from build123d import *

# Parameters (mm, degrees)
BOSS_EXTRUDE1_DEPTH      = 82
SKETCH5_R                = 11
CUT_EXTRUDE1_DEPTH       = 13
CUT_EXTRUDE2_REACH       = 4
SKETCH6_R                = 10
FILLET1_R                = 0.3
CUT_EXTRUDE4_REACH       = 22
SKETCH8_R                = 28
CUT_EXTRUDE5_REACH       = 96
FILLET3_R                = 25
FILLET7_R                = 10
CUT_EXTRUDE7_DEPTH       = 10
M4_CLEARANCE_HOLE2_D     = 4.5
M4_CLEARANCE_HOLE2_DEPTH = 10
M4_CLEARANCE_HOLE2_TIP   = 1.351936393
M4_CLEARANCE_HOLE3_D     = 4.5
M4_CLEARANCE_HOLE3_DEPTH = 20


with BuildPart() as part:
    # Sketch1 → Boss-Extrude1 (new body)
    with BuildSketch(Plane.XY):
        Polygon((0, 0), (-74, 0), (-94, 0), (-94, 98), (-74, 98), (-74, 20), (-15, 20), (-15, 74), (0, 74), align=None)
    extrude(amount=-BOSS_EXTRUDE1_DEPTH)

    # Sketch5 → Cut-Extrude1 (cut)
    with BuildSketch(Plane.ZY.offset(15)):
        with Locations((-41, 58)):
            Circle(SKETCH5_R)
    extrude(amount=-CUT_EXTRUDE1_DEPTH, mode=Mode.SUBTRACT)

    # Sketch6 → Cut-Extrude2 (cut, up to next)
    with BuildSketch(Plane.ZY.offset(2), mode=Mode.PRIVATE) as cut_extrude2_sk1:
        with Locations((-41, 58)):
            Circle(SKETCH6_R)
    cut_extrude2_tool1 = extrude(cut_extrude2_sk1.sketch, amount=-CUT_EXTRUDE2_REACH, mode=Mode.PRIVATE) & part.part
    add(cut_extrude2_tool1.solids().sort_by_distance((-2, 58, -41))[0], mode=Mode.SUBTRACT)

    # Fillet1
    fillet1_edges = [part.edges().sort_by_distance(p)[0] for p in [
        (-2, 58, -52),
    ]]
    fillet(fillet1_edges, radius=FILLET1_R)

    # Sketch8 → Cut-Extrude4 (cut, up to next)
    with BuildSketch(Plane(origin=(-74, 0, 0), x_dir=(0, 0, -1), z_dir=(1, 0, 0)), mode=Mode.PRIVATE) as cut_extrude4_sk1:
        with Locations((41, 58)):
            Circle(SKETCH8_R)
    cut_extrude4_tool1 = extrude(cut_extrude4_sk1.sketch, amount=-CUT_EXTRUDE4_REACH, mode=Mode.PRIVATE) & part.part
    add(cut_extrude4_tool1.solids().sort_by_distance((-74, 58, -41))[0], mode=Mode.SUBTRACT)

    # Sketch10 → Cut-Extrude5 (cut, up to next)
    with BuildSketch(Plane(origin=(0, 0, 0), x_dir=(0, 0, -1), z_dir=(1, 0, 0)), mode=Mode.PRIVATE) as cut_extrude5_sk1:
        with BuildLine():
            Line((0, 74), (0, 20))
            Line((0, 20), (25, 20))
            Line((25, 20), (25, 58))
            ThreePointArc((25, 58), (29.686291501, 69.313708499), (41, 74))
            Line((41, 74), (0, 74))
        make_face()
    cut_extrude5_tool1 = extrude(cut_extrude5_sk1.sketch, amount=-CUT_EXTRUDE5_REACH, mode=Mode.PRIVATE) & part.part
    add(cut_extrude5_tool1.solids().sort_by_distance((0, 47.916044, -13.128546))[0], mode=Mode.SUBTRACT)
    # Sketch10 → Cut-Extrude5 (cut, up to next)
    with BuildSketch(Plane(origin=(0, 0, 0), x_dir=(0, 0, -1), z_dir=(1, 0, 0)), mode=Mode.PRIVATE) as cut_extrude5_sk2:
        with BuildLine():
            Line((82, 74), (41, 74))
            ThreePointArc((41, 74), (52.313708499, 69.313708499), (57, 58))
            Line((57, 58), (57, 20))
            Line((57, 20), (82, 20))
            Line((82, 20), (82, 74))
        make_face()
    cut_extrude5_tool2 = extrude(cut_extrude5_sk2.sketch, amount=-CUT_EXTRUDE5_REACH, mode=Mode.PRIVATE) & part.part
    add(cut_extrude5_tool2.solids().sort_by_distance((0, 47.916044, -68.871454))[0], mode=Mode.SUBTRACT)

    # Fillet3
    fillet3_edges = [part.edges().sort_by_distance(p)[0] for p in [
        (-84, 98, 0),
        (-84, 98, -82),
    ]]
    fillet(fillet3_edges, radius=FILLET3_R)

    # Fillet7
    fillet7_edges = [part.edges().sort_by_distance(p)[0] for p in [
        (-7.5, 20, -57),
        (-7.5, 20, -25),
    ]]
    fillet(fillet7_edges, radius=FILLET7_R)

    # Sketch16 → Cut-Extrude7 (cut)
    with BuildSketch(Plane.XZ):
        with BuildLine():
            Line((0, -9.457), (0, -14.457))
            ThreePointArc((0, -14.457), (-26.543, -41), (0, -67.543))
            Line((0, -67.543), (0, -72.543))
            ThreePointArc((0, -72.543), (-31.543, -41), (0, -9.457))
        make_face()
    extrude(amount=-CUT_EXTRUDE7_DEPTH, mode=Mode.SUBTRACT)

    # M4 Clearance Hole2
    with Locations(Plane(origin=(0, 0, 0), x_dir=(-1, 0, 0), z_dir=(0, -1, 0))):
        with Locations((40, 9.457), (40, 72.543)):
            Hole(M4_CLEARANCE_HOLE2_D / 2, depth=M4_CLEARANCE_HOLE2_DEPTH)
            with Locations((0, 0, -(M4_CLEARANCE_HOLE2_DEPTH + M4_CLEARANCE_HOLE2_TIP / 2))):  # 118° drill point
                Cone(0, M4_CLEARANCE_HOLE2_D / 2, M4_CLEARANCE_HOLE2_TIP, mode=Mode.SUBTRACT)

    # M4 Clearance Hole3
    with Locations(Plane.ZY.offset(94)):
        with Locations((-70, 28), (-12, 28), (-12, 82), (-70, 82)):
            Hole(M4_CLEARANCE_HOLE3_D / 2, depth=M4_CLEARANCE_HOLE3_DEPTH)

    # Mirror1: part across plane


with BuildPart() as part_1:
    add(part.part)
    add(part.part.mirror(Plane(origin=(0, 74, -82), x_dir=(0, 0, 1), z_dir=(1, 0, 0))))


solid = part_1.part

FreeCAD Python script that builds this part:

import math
import FreeCAD as App
import Part
import Sketcher


def edges_at(feature, points):
    """Names of the edges that pass closest to the given points."""
    edges = feature.Shape.Edges
    near = lambda p: min(range(len(edges)), key=lambda i: edges[i].distToShape(Part.Vertex(*p))[0])
    return sorted({f"Edge{near(p) + 1}" for p in points})

doc = App.newDocument("Part")
body = doc.addObject("PartDesign::Body", "Body")

# Sketch on XY plane
sketch1 = body.newObject("Sketcher::SketchObject", "Sketch")
sketch1.AttachmentSupport = (doc.getObject("XY_Plane"), [""])
sketch1.MapMode = "FlatFace"
sketch1.addGeometry(Part.LineSegment(App.Vector(-94, 0, 0), App.Vector(0, 0, 0)), False)
sketch1.addGeometry(Part.LineSegment(App.Vector(0, 0, 0), App.Vector(0, 74, 0)), False)
sketch1.addGeometry(Part.LineSegment(App.Vector(0, 74, 0), App.Vector(-15, 74, 0)), False)
sketch1.addGeometry(Part.LineSegment(App.Vector(-15, 74, 0), App.Vector(-15, 20, 0)), False)
sketch1.addGeometry(Part.LineSegment(App.Vector(-15, 20, 0), App.Vector(-74, 20, 0)), False)
sketch1.addGeometry(Part.LineSegment(App.Vector(-74, 20, 0), App.Vector(-74, 98, 0)), False)
sketch1.addGeometry(Part.LineSegment(App.Vector(-74, 98, 0), App.Vector(-94, 98, 0)), False)
sketch1.addGeometry(Part.LineSegment(App.Vector(-94, 98, 0), App.Vector(-94, 0, 0)), False)
sketch1.addConstraint(Sketcher.Constraint("Coincident", 0, 2, 1, 1))
sketch1.addConstraint(Sketcher.Constraint("Coincident", 1, 2, 2, 1))
sketch1.addConstraint(Sketcher.Constraint("Coincident", 2, 2, 3, 1))
sketch1.addConstraint(Sketcher.Constraint("Coincident", 3, 2, 4, 1))
sketch1.addConstraint(Sketcher.Constraint("Coincident", 4, 2, 5, 1))
sketch1.addConstraint(Sketcher.Constraint("Coincident", 5, 2, 6, 1))
sketch1.addConstraint(Sketcher.Constraint("Coincident", 6, 2, 7, 1))
sketch1.addConstraint(Sketcher.Constraint("Coincident", 7, 2, 0, 1))
sketch1.addConstraint(Sketcher.Constraint("Horizontal", 0))
sketch1.addConstraint(Sketcher.Constraint("Vertical", 1))
sketch1.addConstraint(Sketcher.Constraint("Horizontal", 2))
sketch1.addConstraint(Sketcher.Constraint("Vertical", 3))
sketch1.addConstraint(Sketcher.Constraint("Horizontal", 4))
sketch1.addConstraint(Sketcher.Constraint("Vertical", 5))
sketch1.addConstraint(Sketcher.Constraint("Horizontal", 6))
sketch1.addConstraint(Sketcher.Constraint("Vertical", 7))
sketch1.addConstraint(Sketcher.Constraint("Coincident", 0, 2, -1, 1))
sketch1.addConstraint(Sketcher.Constraint("DistanceX", 0, 1, 0, 2, 94.0))
sketch1.addConstraint(Sketcher.Constraint("DistanceX", 2, 2, 2, 1, 15.0))
sketch1.addConstraint(Sketcher.Constraint("DistanceX", 4, 2, 4, 1, 59.0))
sketch1.addConstraint(Sketcher.Constraint("DistanceY", 1, 1, 1, 2, 74.0))
sketch1.addConstraint(Sketcher.Constraint("DistanceY", 3, 2, 3, 1, 54.0))
sketch1.addConstraint(Sketcher.Constraint("DistanceY", 5, 1, 5, 2, 78.0))
pad1 = body.newObject("PartDesign::Pad", "Pad")
pad1.Profile = sketch1
pad1.Length = 82
pad1.Reversed = True

# Sketch on YZ plane
sketch2 = body.newObject("Sketcher::SketchObject", "Sketch001")
sketch2.AttachmentSupport = (doc.getObject("YZ_Plane"), [""])
sketch2.MapMode = "FlatFace"
sketch2.AttachmentOffset = App.Placement(App.Vector(0, 0, -15), App.Rotation())
sketch2.addGeometry(Part.Circle(App.Vector(58, -41, 0), App.Vector(0, 0, 1), 11), False)
sketch2.addConstraint(Sketcher.Constraint("Diameter", 0, 22.0))
sketch2.addConstraint(Sketcher.Constraint("DistanceX", -1, 1, 0, 3, 58.0))
sketch2.addConstraint(Sketcher.Constraint("DistanceY", 0, 3, -1, 1, 41.0))
pocket1 = body.newObject("PartDesign::Pocket", "Pocket")
pocket1.Profile = sketch2
pocket1.Length = 13
pocket1.Reversed = True

# Sketch on YZ plane
sketch3 = body.newObject("Sketcher::SketchObject", "Sketch002")
sketch3.AttachmentSupport = (doc.getObject("YZ_Plane"), [""])
sketch3.MapMode = "FlatFace"
sketch3.AttachmentOffset = App.Placement(App.Vector(0, 0, -2), App.Rotation())
sketch3.addGeometry(Part.Circle(App.Vector(58, -41, 0), App.Vector(0, 0, 1), 10), False)
sketch3.addConstraint(Sketcher.Constraint("Diameter", 0, 20.0))
sketch3.addConstraint(Sketcher.Constraint("DistanceX", -1, 1, 0, 3, 58.0))
sketch3.addConstraint(Sketcher.Constraint("DistanceY", 0, 3, -1, 1, 41.0))
pocket2 = body.newObject("PartDesign::Pocket", "Pocket001")
pocket2.Profile = sketch3
pocket2.Type = "UpToFirst"
pocket2.Reversed = True
doc.recompute()

fillet = body.newObject("PartDesign::Fillet", "Fillet")
fillet.Base = (pocket2, edges_at(pocket2, [(-2, 58, -52)]))
fillet.Radius = 0.3

# Sketch on YZ plane
sketch4 = body.newObject("Sketcher::SketchObject", "Sketch003")
sketch4.AttachmentSupport = (doc.getObject("YZ_Plane"), [""])
sketch4.MapMode = "FlatFace"
sketch4.AttachmentOffset = App.Placement(App.Vector(0, 0, -74), App.Rotation())
sketch4.addGeometry(Part.Circle(App.Vector(58, -41, 0), App.Vector(0, 0, 1), 28), False)
sketch4.addConstraint(Sketcher.Constraint("Diameter", 0, 56.0))
sketch4.addConstraint(Sketcher.Constraint("DistanceX", -1, 1, 0, 3, 58.0))
sketch4.addConstraint(Sketcher.Constraint("DistanceY", 0, 3, -1, 1, 41.0))
pocket3 = body.newObject("PartDesign::Pocket", "Pocket002")
pocket3.Profile = sketch4
pocket3.Type = "UpToFirst"

# Sketch on YZ plane
sketch5 = body.newObject("Sketcher::SketchObject", "Sketch004")
sketch5.AttachmentSupport = (doc.getObject("YZ_Plane"), [""])
sketch5.MapMode = "FlatFace"
sketch5.addGeometry(Part.LineSegment(App.Vector(74, 0, 0), App.Vector(20, 0, 0)), False)
sketch5.addGeometry(Part.LineSegment(App.Vector(20, 0, 0), App.Vector(20, -25, 0)), False)
sketch5.addGeometry(Part.LineSegment(App.Vector(20, -25, 0), App.Vector(58, -25, 0)), False)
sketch5.addGeometry(Part.ArcOfCircle(Part.Circle(App.Vector(58, -41, 0), App.Vector(0, 0, 1), 16), math.radians(0), math.radians(90)), False)
sketch5.addGeometry(Part.LineSegment(App.Vector(74, -41, 0), App.Vector(74, 0, 0)), False)
sketch5.addConstraint(Sketcher.Constraint("Coincident", 0, 2, 1, 1))
sketch5.addConstraint(Sketcher.Constraint("Coincident", 1, 2, 2, 1))
sketch5.addConstraint(Sketcher.Constraint("Tangent", 2, 2, 3, 2))
sketch5.addConstraint(Sketcher.Constraint("Tangent", 3, 1, 4, 1))
sketch5.addConstraint(Sketcher.Constraint("Coincident", 4, 2, 0, 1))
sketch5.addConstraint(Sketcher.Constraint("Horizontal", 0))
sketch5.addConstraint(Sketcher.Constraint("Vertical", 1))
sketch5.addConstraint(Sketcher.Constraint("Horizontal", 2))
sketch5.addConstraint(Sketcher.Constraint("Vertical", 4))
sketch5.addConstraint(Sketcher.Constraint("PointOnObject", 0, 2, -1))
sketch5.addConstraint(Sketcher.Constraint("Radius", 3, 16.0))
sketch5.addConstraint(Sketcher.Constraint("DistanceX", 0, 2, 0, 1, 54.0))
sketch5.addConstraint(Sketcher.Constraint("DistanceY", 1, 2, 1, 1, 25.0))
sketch5.addConstraint(Sketcher.Constraint("DistanceX", -1, 1, 3, 3, 58.0))
pocket4 = body.newObject("PartDesign::Pocket", "Pocket003")
pocket4.Profile = sketch5
pocket4.Type = "UpToFirst"

# Sketch on YZ plane
sketch6 = body.newObject("Sketcher::SketchObject", "Sketch005")
sketch6.AttachmentSupport = (doc.getObject("YZ_Plane"), [""])
sketch6.MapMode = "FlatFace"
sketch6.addGeometry(Part.LineSegment(App.Vector(74, -82, 0), App.Vector(74, -41, 0)), False)
sketch6.addGeometry(Part.ArcOfCircle(Part.Circle(App.Vector(58, -41, 0), App.Vector(0, 0, 1), 16), math.radians(-90), math.radians(0)), False)
sketch6.addGeometry(Part.LineSegment(App.Vector(58, -57, 0), App.Vector(20, -57, 0)), False)
sketch6.addGeometry(Part.LineSegment(App.Vector(20, -57, 0), App.Vector(20, -82, 0)), False)
sketch6.addGeometry(Part.LineSegment(App.Vector(20, -82, 0), App.Vector(74, -82, 0)), False)
sketch6.addConstraint(Sketcher.Constraint("Tangent", 0, 2, 1, 2))
sketch6.addConstraint(Sketcher.Constraint("Tangent", 1, 1, 2, 1))
sketch6.addConstraint(Sketcher.Constraint("Coincident", 2, 2, 3, 1))
sketch6.addConstraint(Sketcher.Constraint("Coincident", 3, 2, 4, 1))
sketch6.addConstraint(Sketcher.Constraint("Coincident", 4, 2, 0, 1))
sketch6.addConstraint(Sketcher.Constraint("Vertical", 0))
sketch6.addConstraint(Sketcher.Constraint("Horizontal", 2))
sketch6.addConstraint(Sketcher.Constraint("Vertical", 3))
sketch6.addConstraint(Sketcher.Constraint("Horizontal", 4))
sketch6.addConstraint(Sketcher.Constraint("Radius", 1, 16.0))
sketch6.addConstraint(Sketcher.Constraint("DistanceX", 2, 2, 2, 1, 38.0))
sketch6.addConstraint(Sketcher.Constraint("DistanceY", 0, 1, 0, 2, 41.0))
sketch6.addConstraint(Sketcher.Constraint("DistanceX", -1, 1, 1, 3, 58.0))
sketch6.addConstraint(Sketcher.Constraint("DistanceY", 1, 3, -1, 1, 41.0))
pocket5 = body.newObject("PartDesign::Pocket", "Pocket004")
pocket5.Profile = sketch6
pocket5.Type = "UpToFirst"
doc.recompute()

fillet2 = body.newObject("PartDesign::Fillet", "Fillet001")
fillet2.Base = (pocket5, edges_at(pocket5, [(-84, 98, 0), (-84, 98, -82)]))
fillet2.Radius = 25
doc.recompute()

fillet3 = body.newObject("PartDesign::Fillet", "Fillet002")
fillet3.Base = (fillet2, edges_at(fillet2, [(-7.5, 20, -57), (-7.5, 20, -25)]))
fillet3.Radius = 10

# Sketch on XZ plane
sketch7 = body.newObject("Sketcher::SketchObject", "Sketch006")
sketch7.AttachmentSupport = (doc.getObject("XZ_Plane"), [""])
sketch7.MapMode = "FlatFace"
sketch7.addGeometry(Part.LineSegment(App.Vector(0, -14, 0), App.Vector(0, -9, 0)), False)
sketch7.addGeometry(Part.ArcOfCircle(Part.Circle(App.Vector(0, -41, 0), App.Vector(0, 0, 1), 32), math.radians(90), math.radians(270)), False)
sketch7.addGeometry(Part.LineSegment(App.Vector(0, -73, 0), App.Vector(0, -68, 0)), False)
sketch7.addGeometry(Part.ArcOfCircle(Part.Circle(App.Vector(0, -41, 0), App.Vector(0, 0, 1), 27), math.radians(90), math.radians(270)), False)
sketch7.addConstraint(Sketcher.Constraint("Coincident", 0, 2, 1, 1))
sketch7.addConstraint(Sketcher.Constraint("Coincident", 1, 2, 2, 1))
sketch7.addConstraint(Sketcher.Constraint("Coincident", 2, 2, 3, 2))
sketch7.addConstraint(Sketcher.Constraint("Coincident", 3, 1, 0, 1))
sketch7.addConstraint(Sketcher.Constraint("Vertical", 0))
sketch7.addConstraint(Sketcher.Constraint("Vertical", 2))
sketch7.addConstraint(Sketcher.Constraint("Coincident", 3, 3, 1, 3))
sketch7.addConstraint(Sketcher.Constraint("PointOnObject", 1, 3, -2))
sketch7.addConstraint(Sketcher.Constraint("PointOnObject", 0, 2, -2))
sketch7.addConstraint(Sketcher.Constraint("PointOnObject", 1, 2, -2))
sketch7.addConstraint(Sketcher.Constraint("DistanceY", 0, 1, 0, 2, 5.0))
sketch7.addConstraint(Sketcher.Constraint("DistanceY", 1, 3, -1, 1, 41.0))
sketch7.addConstraint(Sketcher.Constraint("Radius", 1, 31.543))
pocket6 = body.newObject("PartDesign::Pocket", "Pocket005")
pocket6.Profile = sketch7
pocket6.Length = 10

# Sketch on XZ plane
sketch8 = body.newObject("Sketcher::SketchObject", "Sketch007")
sketch8.AttachmentSupport = (doc.getObject("XZ_Plane"), [""])
sketch8.MapMode = "FlatFace"
sketch8.addGeometry(Part.Circle(App.Vector(-40, -9.5, 0), App.Vector(0, 0, 1), 2.2), False)
sketch8.addGeometry(Part.Circle(App.Vector(-40, -72.5, 0), App.Vector(0, 0, 1), 2.2), False)
sketch8.addConstraint(Sketcher.Constraint("Equal", 0, 1))
sketch8.addConstraint(Sketcher.Constraint("Vertical", 0, 3, 1, 3))
sketch8.addConstraint(Sketcher.Constraint("Diameter", 0, 4.5))
sketch8.addConstraint(Sketcher.Constraint("DistanceX", 0, 3, -1, 1, 40.0))
sketch8.addConstraint(Sketcher.Constraint("DistanceY", 0, 3, -1, 1, 9.457))
sketch8.addConstraint(Sketcher.Constraint("DistanceY", 1, 3, -1, 1, 72.543))
doc.recompute()
hole = body.newObject("PartDesign::Hole", "Hole")
hole.Profile = sketch8
hole.ThreadType = "None"
hole.Diameter = 4.5
hole.DepthType = "Dimension"
hole.Depth = 10
hole.DrillPoint = "Angled"
hole.DrillPointAngle = 118

# Sketch on YZ plane
sketch9 = body.newObject("Sketcher::SketchObject", "Sketch008")
sketch9.AttachmentSupport = (doc.getObject("YZ_Plane"), [""])
sketch9.MapMode = "FlatFace"
sketch9.AttachmentOffset = App.Placement(App.Vector(0, 0, -94), App.Rotation())
sketch9.addGeometry(Part.Circle(App.Vector(28, -70, 0), App.Vector(0, 0, 1), 2.2), False)
sketch9.addGeometry(Part.Circle(App.Vector(28, -12, 0), App.Vector(0, 0, 1), 2.2), False)
sketch9.addGeometry(Part.Circle(App.Vector(82, -12, 0), App.Vector(0, 0, 1), 2.2), False)
sketch9.addGeometry(Part.Circle(App.Vector(82, -70, 0), App.Vector(0, 0, 1), 2.2), False)
sketch9.addConstraint(Sketcher.Constraint("Equal", 0, 1))
sketch9.addConstraint(Sketcher.Constraint("Equal", 1, 2))
sketch9.addConstraint(Sketcher.Constraint("Equal", 2, 3))
sketch9.addConstraint(Sketcher.Constraint("Horizontal", 1, 3, 2, 3))
sketch9.addConstraint(Sketcher.Constraint("Horizontal", 0, 3, 3, 3))
sketch9.addConstraint(Sketcher.Constraint("Vertical", 0, 3, 1, 3))
sketch9.addConstraint(Sketcher.Constraint("Vertical", 2, 3, 3, 3))
sketch9.addConstraint(Sketcher.Constraint("Diameter", 0, 4.5))
sketch9.addConstraint(Sketcher.Constraint("DistanceX", -1, 1, 0, 3, 28.0))
sketch9.addConstraint(Sketcher.Constraint("DistanceY", 0, 3, -1, 1, 70.0))
sketch9.addConstraint(Sketcher.Constraint("DistanceY", 1, 3, -1, 1, 12.0))
sketch9.addConstraint(Sketcher.Constraint("DistanceX", -1, 1, 2, 3, 82.0))
doc.recompute()
hole2 = body.newObject("PartDesign::Hole", "Hole001")
hole2.Profile = sketch9
hole2.ThreadType = "None"
hole2.Diameter = 4.5
hole2.DepthType = "Dimension"
hole2.Depth = 20
hole2.DrillPoint = "Flat"
hole2.Reversed = True
body2 = doc.addObject("PartDesign::Body", "Body001")
doc.recompute()

body2.BaseFeature = body
doc.recompute()

mirroring = doc.addObject("Part::Mirroring", "Mirroring")
mirroring.Source = body
mirroring.Base = App.Vector(0, 74, -82)
mirroring.Normal = App.Vector(1, 0, 0)
body3 = doc.addObject("PartDesign::Body", "Body002")
body3.BaseFeature = mirroring
boolean = body2.newObject("PartDesign::Boolean", "Boolean")
boolean.Type = "Fuse"
boolean.addObjects([body3])
doc.recompute()
mirroring.Visibility = False

doc.recompute()
